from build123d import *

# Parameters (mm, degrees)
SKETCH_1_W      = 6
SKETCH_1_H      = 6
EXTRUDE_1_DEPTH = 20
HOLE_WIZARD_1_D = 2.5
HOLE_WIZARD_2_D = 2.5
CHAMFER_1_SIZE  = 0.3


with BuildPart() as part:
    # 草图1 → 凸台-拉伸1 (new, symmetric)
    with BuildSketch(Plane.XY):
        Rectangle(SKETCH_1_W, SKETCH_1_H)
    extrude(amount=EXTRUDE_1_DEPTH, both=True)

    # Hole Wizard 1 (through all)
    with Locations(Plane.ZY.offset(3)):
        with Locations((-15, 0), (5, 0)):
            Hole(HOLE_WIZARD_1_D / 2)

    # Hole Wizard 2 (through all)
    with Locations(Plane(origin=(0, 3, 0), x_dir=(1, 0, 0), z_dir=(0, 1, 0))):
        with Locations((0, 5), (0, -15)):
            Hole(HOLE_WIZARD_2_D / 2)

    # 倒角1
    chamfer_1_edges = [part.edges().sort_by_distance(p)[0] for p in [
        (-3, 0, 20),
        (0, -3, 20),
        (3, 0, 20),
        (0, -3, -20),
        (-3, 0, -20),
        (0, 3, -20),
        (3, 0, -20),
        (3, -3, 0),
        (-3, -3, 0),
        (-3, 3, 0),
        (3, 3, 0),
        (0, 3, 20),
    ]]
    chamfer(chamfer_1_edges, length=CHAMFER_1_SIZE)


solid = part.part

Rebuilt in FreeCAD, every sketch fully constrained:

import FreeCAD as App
import Part
import Sketcher
from FreeCAD import Vector
Q = App.Units.Quantity


def edges_at(feature, points):
    """Names of the edges that pass closest to the given points."""
    edges = feature.Shape.Edges
    near = lambda p: min(range(len(edges)), key=lambda i: edges[i].distToShape(Part.Vertex(*p))[0])
    return sorted({f"Edge{near(p) + 1}" for p in points})


def add_polygon(sketch, points):
    """Adds a closed chain of lines whose ends are joined by coincident constraints."""
    first, n = sketch.GeometryCount, len(points)
    for a, b in zip(points, points[1:] + points[:1]):
        sketch.addGeometry(Part.LineSegment(App.Vector(*a, 0), App.Vector(*b, 0)), False)
    for i in range(n):
        sketch.addConstraint(Sketcher.Constraint("Coincident", first + i, 2, first + (i + 1) % n, 1))

doc = App.newDocument("Part")
params = doc.addObject("Spreadsheet::Sheet", "Params")
for row, (alias, value) in enumerate([
    ("sketch1_width", "6 mm"),
    ("pad1_length", "40 mm"),
    ("sketch2_diameter", "2.5 mm"),
    ("hole_diameter", "2.5 mm"),
    ("sketch3_diameter", "2.5 mm"),
    ("hole2_diameter", "2.5 mm"),
    ("chamfer_size", "0.3 mm"),
], start=1):
    params.set(f"A{row}", alias)
    params.set(f"B{row}", "=" + value)
    params.setAlias(f"B{row}", alias)

body = doc.addObject("PartDesign::Body", "Body")

# Sketch on XY plane
sketch1 = body.newObject("Sketcher::SketchObject", "Sketch")
sketch1.AttachmentSupport = (doc.getObject("XY_Plane"), [""])
sketch1.MapMode = "FlatFace"
add_polygon(sketch1, [(-3, 3), (-3, -3), (3, -3), (3, 3)])  # lines 0-3
sketch1.addConstraint([
    Sketcher.Constraint("Vertical", 0),
    Sketcher.Constraint("Horizontal", 1),
    Sketcher.Constraint("Vertical", 2),
    Sketcher.Constraint("Horizontal", 3),
    Sketcher.Constraint("Symmetric", 0, 2, 2, 2, -1, 1),
    Sketcher.Constraint("Equal", 3, 0),
    Sketcher.Constraint("DistanceX", 1, 1, 1, 2, Q("6 mm")),
])
sketch1.setExpression("Constraints[10]", "Params.sketch1_width")
pad1 = body.newObject("PartDesign::Pad", "Pad")
pad1.Profile = sketch1
pad1.setExpression("Length", "Params.pad1_length")
pad1.Midplane = True

# Sketch on YZ plane
sketch2 = body.newObject("Sketcher::SketchObject", "Sketch001")
sketch2.AttachmentSupport = (doc.getObject("YZ_Plane"), [""])
sketch2.MapMode = "FlatFace"
sketch2.AttachmentOffset = App.Placement(Vector(0, 0, -3), App.Rotation())
sketch2.addGeometry([
    Part.Circle(Vector(0, -15, 0), Vector(0, 0, 1), 1.2),
    Part.Circle(Vector(0, 5, 0), Vector(0, 0, 1), 1.2),
], False)
sketch2.addConstraint([
    Sketcher.Constraint("Equal", 0, 1),
    Sketcher.Constraint("PointOnObject", 0, 3, -2),
    Sketcher.Constraint("PointOnObject", 1, 3, -2),
    Sketcher.Constraint("Diameter", 0, Q("2.5 mm")),
    Sketcher.Constraint("DistanceY", 0, 3, -1, 1, Q("15 mm")),
    Sketcher.Constraint("DistanceY", -1, 1, 1, 3, Q("5 mm")),
])
sketch2.setExpression("Constraints[3]", "Params.sketch2_diameter")
doc.recompute()
hole = body.newObject("PartDesign::Hole", "Hole")
hole.Profile = sketch2
hole.ThreadType = "None"
hole.setExpression("Diameter", "Params.hole_diameter")
hole.DepthType = "ThroughAll"
hole.Reversed = True

# Sketch on XZ plane
sketch3 = body.newObject("Sketcher::SketchObject", "Sketch002")
sketch3.AttachmentSupport = (doc.getObject("XZ_Plane"), [""])
sketch3.MapMode = "FlatFace"
sketch3.AttachmentOffset = App.Placement(Vector(0, 0, -3), App.Rotation())
sketch3.addGeometry([
    Part.Circle(Vector(0, -5, 0), Vector(0, 0, 1), 1.2),
    Part.Circle(Vector(0, 15, 0), Vector(0, 0, 1), 1.2),
], False)
sketch3.addConstraint([
    Sketcher.Constraint("Equal", 0, 1),
    Sketcher.Constraint("PointOnObject", 0, 3, -2),
    Sketcher.Constraint("PointOnObject", 1, 3, -2),
    Sketcher.Constraint("Diameter", 0, Q("2.5 mm")),
    Sketcher.Constraint("DistanceY", 0, 3, -1, 1, Q("5 mm")),
    Sketcher.Constraint("DistanceY", -1, 1, 1, 3, Q("15 mm")),
])
sketch3.setExpression("Constraints[3]", "Params.sketch3_diameter")
doc.recompute()
hole2 = body.newObject("PartDesign::Hole", "Hole001")
hole2.Profile = sketch3
hole2.ThreadType = "None"
hole2.setExpression("Diameter", "Params.hole2_diameter")
hole2.DepthType = "ThroughAll"
hole2.Reversed = True
doc.recompute()

chamfer = body.newObject("PartDesign::Chamfer", "Chamfer")
chamfer.Base = (hole2, edges_at(hole2, [
    (-3, 0, 20),
    (0, -3, 20),
    (3, 0, 20),
    (0, -3, -20),
    (-3, 0, -20),
    (0, 3, -20),
    (3, 0, -20),
    (3, -3, 0),
    (-3, -3, 0),
    (-3, 3, 0),
    (3, 3, 0),
    (0, 3, 20),
]))
chamfer.setExpression("Size", "Params.chamfer_size")

doc.recompute()
